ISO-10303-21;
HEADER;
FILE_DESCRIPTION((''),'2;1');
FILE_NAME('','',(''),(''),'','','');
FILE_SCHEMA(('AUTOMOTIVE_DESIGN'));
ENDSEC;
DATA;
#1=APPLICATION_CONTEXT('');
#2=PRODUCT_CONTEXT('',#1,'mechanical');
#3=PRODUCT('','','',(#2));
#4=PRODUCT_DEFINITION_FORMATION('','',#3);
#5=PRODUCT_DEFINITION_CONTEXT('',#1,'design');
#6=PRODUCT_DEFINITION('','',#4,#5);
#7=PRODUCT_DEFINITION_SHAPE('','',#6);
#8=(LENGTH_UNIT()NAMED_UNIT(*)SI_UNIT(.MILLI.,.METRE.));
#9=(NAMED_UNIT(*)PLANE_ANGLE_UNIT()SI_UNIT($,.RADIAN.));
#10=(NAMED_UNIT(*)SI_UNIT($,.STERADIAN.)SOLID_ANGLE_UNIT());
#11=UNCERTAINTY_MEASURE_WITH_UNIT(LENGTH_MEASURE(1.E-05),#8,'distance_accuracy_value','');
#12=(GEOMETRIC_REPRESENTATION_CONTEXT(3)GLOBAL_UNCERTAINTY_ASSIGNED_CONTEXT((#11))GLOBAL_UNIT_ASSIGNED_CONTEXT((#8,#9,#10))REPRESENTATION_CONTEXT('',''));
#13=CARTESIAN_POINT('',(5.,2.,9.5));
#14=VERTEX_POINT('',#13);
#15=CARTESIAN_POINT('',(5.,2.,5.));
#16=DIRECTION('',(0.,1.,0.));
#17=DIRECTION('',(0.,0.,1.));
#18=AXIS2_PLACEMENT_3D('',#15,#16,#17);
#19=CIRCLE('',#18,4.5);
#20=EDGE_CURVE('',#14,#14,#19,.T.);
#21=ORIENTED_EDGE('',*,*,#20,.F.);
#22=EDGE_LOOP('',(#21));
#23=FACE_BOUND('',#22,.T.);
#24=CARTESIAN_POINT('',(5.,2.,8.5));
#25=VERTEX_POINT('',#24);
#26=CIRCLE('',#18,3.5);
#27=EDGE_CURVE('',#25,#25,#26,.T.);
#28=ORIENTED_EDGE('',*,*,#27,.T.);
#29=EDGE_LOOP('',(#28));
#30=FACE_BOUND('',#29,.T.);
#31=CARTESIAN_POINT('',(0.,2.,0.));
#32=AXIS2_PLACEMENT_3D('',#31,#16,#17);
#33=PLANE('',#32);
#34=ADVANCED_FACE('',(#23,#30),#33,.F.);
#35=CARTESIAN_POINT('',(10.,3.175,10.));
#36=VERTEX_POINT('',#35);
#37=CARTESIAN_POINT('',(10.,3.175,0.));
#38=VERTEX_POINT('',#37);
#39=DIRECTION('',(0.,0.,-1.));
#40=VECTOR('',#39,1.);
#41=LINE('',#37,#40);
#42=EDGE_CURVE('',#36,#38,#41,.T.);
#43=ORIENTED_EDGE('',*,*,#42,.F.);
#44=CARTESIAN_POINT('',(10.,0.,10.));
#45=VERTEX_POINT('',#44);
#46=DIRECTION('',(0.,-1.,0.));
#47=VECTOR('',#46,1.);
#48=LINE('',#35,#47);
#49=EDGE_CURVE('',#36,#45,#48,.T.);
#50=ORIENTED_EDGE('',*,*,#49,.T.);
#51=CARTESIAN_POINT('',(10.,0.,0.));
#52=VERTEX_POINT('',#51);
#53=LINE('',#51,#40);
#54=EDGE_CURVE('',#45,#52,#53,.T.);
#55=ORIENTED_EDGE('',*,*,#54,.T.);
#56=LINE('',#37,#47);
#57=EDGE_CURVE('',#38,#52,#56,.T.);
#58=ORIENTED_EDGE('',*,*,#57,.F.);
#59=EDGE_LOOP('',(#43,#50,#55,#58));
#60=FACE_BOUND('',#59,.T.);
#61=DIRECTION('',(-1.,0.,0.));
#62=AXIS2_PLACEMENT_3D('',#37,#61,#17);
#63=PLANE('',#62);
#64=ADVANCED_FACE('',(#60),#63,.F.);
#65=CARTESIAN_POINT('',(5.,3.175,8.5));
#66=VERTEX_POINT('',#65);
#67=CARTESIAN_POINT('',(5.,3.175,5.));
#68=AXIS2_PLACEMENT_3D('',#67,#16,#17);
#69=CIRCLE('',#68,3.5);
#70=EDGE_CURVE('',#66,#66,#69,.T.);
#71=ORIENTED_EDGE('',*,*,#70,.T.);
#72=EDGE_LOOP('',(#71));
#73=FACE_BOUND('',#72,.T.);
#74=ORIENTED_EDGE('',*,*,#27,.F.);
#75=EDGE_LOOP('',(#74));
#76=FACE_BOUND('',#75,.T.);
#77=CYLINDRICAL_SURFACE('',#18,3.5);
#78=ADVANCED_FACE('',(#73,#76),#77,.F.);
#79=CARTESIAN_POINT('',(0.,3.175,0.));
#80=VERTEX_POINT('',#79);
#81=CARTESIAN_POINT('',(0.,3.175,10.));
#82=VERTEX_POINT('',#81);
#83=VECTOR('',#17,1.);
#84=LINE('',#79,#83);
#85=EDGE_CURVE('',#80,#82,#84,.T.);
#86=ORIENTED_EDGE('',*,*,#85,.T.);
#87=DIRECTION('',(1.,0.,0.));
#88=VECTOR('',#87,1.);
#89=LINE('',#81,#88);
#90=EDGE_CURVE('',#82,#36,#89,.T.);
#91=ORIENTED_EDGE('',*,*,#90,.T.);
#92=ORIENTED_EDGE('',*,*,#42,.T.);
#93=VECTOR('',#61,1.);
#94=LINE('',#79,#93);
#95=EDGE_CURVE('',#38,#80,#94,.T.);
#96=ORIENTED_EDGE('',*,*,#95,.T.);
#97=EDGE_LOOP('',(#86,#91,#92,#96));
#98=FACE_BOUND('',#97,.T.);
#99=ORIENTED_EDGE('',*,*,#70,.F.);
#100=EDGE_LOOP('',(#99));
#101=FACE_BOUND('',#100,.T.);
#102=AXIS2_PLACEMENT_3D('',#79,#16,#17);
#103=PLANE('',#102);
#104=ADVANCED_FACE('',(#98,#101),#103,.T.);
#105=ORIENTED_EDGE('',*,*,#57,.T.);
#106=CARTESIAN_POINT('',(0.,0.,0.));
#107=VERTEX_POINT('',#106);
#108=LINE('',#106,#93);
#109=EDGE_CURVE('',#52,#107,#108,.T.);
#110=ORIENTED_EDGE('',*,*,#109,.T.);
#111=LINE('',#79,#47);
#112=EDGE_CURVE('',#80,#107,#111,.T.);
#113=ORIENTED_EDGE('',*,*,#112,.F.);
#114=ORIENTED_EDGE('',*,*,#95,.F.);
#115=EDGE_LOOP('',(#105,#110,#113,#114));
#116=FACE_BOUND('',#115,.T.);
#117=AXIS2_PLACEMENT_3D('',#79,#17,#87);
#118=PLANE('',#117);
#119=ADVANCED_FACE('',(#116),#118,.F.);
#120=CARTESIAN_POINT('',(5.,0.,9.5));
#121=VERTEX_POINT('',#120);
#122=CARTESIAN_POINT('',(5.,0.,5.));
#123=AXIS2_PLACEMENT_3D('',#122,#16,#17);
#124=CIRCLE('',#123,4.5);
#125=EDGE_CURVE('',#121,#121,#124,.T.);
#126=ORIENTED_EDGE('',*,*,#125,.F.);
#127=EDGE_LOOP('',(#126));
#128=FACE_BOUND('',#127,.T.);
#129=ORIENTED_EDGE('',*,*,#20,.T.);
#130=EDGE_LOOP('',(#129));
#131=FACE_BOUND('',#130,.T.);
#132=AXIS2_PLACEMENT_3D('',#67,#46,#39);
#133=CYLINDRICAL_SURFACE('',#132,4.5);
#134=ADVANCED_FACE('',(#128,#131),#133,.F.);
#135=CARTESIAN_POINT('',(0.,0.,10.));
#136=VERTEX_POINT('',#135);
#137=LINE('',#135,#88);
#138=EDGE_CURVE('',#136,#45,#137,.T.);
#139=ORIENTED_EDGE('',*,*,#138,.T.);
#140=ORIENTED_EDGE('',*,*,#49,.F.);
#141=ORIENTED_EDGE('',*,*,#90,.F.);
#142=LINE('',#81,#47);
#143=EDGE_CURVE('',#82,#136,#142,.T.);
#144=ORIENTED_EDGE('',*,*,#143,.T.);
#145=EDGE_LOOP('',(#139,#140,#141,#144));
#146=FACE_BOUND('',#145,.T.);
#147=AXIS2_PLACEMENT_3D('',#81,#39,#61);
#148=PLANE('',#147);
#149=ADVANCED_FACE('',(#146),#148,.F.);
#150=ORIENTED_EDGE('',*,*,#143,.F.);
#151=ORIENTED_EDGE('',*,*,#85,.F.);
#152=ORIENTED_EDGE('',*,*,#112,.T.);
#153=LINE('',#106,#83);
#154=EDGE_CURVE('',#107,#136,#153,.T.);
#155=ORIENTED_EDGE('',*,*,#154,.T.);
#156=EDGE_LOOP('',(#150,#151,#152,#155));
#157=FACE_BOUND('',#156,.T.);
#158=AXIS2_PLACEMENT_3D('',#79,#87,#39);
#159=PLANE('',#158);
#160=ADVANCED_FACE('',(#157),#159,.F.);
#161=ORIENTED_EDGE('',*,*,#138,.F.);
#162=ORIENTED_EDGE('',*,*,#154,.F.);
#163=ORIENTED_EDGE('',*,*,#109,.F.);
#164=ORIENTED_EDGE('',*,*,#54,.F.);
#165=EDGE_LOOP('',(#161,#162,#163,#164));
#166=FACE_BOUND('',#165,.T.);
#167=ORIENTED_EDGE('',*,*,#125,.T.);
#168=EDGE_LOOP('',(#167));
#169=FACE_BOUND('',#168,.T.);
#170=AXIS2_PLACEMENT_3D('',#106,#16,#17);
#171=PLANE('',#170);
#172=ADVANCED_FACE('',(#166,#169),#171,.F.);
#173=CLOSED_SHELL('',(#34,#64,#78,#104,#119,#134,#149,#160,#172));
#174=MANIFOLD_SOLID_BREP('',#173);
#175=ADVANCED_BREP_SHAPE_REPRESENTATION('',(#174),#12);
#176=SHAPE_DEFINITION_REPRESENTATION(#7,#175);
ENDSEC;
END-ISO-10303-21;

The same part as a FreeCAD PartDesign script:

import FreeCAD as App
import Part
import Sketcher

V = App.Vector


def add_polygon(sketch, points):
    """Adds a closed chain of lines whose ends are joined by coincident constraints."""
    first, n = sketch.GeometryCount, len(points)
    for a, b in zip(points, points[1:] + points[:1]):
        sketch.addGeometry(Part.LineSegment(App.Vector(*a, 0), App.Vector(*b, 0)), False)
    for i in range(n):
        sketch.addConstraint(Sketcher.Constraint("Coincident", first + i, 2, first + (i + 1) % n, 1))

doc = App.newDocument("Part")
body = doc.addObject("PartDesign::Body", "Body")

# Sketch on XZ plane
sketch1 = doc.addObject("Sketcher::SketchObject", "Sketch")
body.addObject(sketch1)
sketch1.AttachmentSupport = (doc.XZ_Plane, [""])
sketch1.MapMode = "FlatFace"
add_polygon(sketch1, [(0, 0), (0, 10), (10, 10), (10, 0)])  # lines 0-3
sketch1.addGeometry(Part.Circle(V(5, 5, 0), V(0, 0, 1), 4.5), False)  # 4
sketch1.addConstraint([
    Sketcher.Constraint("Vertical", 0),
    Sketcher.Constraint("Horizontal", 1),
    Sketcher.Constraint("Vertical", 2),
    Sketcher.Constraint("Horizontal", 3),
    Sketcher.Constraint("Coincident", 3, 2, -1, 1),
    Sketcher.Constraint("Equal", 3, 0),
    Sketcher.Constraint("Diameter", 4, 9.0),
    Sketcher.Constraint("DistanceX", 1, 1, 1, 2, 10.0),
    Sketcher.Constraint("DistanceX", -1, 1, 4, 3, 5.0),
    Sketcher.Constraint("DistanceY", -1, 1, 4, 3, 5.0),
])
pad1 = doc.addObject("PartDesign::Pad", "Pad")
body.addObject(pad1)
pad1.Profile = sketch1
pad1.Length = 3.175
pad1.Reversed = True

# Sketch on XZ plane
sketch2 = doc.addObject("Sketcher::SketchObject", "Sketch001")
body.addObject(sketch2)
sketch2.AttachmentSupport = (doc.XZ_Plane, [""])
sketch2.MapMode = "FlatFace"
sketch2.AttachmentOffset = App.Placement(V(0, 0, -3.175), App.Rotation())
add_polygon(sketch2, [(0, 0), (0, 10), (10, 10), (10, 0)])  # lines 0-3
sketch2.addGeometry(Part.Circle(V(5, 5, 0), V(0, 0, 1), 3.5), False)  # 4
sketch2.addConstraint([
    Sketcher.Constraint("Vertical", 0),
    Sketcher.Constraint("Horizontal", 1),
    Sketcher.Constraint("Vertical", 2),
    Sketcher.Constraint("Horizontal", 3),
    Sketcher.Constraint("Coincident", 3, 2, -1, 1),
    Sketcher.Constraint("Equal", 3, 0),
    Sketcher.Constraint("Diameter", 4, 7.0),
    Sketcher.Constraint("DistanceX", 1, 1, 1, 2, 10.0),
    Sketcher.Constraint("DistanceX", -1, 1, 4, 3, 5.0),
    Sketcher.Constraint("DistanceY", -1, 1, 4, 3, 5.0),
])
pad2 = doc.addObject("PartDesign::Pad", "Pad001")
body.addObject(pad2)
pad2.Profile = sketch2
pad2.Length = 1.175

doc.recompute()
